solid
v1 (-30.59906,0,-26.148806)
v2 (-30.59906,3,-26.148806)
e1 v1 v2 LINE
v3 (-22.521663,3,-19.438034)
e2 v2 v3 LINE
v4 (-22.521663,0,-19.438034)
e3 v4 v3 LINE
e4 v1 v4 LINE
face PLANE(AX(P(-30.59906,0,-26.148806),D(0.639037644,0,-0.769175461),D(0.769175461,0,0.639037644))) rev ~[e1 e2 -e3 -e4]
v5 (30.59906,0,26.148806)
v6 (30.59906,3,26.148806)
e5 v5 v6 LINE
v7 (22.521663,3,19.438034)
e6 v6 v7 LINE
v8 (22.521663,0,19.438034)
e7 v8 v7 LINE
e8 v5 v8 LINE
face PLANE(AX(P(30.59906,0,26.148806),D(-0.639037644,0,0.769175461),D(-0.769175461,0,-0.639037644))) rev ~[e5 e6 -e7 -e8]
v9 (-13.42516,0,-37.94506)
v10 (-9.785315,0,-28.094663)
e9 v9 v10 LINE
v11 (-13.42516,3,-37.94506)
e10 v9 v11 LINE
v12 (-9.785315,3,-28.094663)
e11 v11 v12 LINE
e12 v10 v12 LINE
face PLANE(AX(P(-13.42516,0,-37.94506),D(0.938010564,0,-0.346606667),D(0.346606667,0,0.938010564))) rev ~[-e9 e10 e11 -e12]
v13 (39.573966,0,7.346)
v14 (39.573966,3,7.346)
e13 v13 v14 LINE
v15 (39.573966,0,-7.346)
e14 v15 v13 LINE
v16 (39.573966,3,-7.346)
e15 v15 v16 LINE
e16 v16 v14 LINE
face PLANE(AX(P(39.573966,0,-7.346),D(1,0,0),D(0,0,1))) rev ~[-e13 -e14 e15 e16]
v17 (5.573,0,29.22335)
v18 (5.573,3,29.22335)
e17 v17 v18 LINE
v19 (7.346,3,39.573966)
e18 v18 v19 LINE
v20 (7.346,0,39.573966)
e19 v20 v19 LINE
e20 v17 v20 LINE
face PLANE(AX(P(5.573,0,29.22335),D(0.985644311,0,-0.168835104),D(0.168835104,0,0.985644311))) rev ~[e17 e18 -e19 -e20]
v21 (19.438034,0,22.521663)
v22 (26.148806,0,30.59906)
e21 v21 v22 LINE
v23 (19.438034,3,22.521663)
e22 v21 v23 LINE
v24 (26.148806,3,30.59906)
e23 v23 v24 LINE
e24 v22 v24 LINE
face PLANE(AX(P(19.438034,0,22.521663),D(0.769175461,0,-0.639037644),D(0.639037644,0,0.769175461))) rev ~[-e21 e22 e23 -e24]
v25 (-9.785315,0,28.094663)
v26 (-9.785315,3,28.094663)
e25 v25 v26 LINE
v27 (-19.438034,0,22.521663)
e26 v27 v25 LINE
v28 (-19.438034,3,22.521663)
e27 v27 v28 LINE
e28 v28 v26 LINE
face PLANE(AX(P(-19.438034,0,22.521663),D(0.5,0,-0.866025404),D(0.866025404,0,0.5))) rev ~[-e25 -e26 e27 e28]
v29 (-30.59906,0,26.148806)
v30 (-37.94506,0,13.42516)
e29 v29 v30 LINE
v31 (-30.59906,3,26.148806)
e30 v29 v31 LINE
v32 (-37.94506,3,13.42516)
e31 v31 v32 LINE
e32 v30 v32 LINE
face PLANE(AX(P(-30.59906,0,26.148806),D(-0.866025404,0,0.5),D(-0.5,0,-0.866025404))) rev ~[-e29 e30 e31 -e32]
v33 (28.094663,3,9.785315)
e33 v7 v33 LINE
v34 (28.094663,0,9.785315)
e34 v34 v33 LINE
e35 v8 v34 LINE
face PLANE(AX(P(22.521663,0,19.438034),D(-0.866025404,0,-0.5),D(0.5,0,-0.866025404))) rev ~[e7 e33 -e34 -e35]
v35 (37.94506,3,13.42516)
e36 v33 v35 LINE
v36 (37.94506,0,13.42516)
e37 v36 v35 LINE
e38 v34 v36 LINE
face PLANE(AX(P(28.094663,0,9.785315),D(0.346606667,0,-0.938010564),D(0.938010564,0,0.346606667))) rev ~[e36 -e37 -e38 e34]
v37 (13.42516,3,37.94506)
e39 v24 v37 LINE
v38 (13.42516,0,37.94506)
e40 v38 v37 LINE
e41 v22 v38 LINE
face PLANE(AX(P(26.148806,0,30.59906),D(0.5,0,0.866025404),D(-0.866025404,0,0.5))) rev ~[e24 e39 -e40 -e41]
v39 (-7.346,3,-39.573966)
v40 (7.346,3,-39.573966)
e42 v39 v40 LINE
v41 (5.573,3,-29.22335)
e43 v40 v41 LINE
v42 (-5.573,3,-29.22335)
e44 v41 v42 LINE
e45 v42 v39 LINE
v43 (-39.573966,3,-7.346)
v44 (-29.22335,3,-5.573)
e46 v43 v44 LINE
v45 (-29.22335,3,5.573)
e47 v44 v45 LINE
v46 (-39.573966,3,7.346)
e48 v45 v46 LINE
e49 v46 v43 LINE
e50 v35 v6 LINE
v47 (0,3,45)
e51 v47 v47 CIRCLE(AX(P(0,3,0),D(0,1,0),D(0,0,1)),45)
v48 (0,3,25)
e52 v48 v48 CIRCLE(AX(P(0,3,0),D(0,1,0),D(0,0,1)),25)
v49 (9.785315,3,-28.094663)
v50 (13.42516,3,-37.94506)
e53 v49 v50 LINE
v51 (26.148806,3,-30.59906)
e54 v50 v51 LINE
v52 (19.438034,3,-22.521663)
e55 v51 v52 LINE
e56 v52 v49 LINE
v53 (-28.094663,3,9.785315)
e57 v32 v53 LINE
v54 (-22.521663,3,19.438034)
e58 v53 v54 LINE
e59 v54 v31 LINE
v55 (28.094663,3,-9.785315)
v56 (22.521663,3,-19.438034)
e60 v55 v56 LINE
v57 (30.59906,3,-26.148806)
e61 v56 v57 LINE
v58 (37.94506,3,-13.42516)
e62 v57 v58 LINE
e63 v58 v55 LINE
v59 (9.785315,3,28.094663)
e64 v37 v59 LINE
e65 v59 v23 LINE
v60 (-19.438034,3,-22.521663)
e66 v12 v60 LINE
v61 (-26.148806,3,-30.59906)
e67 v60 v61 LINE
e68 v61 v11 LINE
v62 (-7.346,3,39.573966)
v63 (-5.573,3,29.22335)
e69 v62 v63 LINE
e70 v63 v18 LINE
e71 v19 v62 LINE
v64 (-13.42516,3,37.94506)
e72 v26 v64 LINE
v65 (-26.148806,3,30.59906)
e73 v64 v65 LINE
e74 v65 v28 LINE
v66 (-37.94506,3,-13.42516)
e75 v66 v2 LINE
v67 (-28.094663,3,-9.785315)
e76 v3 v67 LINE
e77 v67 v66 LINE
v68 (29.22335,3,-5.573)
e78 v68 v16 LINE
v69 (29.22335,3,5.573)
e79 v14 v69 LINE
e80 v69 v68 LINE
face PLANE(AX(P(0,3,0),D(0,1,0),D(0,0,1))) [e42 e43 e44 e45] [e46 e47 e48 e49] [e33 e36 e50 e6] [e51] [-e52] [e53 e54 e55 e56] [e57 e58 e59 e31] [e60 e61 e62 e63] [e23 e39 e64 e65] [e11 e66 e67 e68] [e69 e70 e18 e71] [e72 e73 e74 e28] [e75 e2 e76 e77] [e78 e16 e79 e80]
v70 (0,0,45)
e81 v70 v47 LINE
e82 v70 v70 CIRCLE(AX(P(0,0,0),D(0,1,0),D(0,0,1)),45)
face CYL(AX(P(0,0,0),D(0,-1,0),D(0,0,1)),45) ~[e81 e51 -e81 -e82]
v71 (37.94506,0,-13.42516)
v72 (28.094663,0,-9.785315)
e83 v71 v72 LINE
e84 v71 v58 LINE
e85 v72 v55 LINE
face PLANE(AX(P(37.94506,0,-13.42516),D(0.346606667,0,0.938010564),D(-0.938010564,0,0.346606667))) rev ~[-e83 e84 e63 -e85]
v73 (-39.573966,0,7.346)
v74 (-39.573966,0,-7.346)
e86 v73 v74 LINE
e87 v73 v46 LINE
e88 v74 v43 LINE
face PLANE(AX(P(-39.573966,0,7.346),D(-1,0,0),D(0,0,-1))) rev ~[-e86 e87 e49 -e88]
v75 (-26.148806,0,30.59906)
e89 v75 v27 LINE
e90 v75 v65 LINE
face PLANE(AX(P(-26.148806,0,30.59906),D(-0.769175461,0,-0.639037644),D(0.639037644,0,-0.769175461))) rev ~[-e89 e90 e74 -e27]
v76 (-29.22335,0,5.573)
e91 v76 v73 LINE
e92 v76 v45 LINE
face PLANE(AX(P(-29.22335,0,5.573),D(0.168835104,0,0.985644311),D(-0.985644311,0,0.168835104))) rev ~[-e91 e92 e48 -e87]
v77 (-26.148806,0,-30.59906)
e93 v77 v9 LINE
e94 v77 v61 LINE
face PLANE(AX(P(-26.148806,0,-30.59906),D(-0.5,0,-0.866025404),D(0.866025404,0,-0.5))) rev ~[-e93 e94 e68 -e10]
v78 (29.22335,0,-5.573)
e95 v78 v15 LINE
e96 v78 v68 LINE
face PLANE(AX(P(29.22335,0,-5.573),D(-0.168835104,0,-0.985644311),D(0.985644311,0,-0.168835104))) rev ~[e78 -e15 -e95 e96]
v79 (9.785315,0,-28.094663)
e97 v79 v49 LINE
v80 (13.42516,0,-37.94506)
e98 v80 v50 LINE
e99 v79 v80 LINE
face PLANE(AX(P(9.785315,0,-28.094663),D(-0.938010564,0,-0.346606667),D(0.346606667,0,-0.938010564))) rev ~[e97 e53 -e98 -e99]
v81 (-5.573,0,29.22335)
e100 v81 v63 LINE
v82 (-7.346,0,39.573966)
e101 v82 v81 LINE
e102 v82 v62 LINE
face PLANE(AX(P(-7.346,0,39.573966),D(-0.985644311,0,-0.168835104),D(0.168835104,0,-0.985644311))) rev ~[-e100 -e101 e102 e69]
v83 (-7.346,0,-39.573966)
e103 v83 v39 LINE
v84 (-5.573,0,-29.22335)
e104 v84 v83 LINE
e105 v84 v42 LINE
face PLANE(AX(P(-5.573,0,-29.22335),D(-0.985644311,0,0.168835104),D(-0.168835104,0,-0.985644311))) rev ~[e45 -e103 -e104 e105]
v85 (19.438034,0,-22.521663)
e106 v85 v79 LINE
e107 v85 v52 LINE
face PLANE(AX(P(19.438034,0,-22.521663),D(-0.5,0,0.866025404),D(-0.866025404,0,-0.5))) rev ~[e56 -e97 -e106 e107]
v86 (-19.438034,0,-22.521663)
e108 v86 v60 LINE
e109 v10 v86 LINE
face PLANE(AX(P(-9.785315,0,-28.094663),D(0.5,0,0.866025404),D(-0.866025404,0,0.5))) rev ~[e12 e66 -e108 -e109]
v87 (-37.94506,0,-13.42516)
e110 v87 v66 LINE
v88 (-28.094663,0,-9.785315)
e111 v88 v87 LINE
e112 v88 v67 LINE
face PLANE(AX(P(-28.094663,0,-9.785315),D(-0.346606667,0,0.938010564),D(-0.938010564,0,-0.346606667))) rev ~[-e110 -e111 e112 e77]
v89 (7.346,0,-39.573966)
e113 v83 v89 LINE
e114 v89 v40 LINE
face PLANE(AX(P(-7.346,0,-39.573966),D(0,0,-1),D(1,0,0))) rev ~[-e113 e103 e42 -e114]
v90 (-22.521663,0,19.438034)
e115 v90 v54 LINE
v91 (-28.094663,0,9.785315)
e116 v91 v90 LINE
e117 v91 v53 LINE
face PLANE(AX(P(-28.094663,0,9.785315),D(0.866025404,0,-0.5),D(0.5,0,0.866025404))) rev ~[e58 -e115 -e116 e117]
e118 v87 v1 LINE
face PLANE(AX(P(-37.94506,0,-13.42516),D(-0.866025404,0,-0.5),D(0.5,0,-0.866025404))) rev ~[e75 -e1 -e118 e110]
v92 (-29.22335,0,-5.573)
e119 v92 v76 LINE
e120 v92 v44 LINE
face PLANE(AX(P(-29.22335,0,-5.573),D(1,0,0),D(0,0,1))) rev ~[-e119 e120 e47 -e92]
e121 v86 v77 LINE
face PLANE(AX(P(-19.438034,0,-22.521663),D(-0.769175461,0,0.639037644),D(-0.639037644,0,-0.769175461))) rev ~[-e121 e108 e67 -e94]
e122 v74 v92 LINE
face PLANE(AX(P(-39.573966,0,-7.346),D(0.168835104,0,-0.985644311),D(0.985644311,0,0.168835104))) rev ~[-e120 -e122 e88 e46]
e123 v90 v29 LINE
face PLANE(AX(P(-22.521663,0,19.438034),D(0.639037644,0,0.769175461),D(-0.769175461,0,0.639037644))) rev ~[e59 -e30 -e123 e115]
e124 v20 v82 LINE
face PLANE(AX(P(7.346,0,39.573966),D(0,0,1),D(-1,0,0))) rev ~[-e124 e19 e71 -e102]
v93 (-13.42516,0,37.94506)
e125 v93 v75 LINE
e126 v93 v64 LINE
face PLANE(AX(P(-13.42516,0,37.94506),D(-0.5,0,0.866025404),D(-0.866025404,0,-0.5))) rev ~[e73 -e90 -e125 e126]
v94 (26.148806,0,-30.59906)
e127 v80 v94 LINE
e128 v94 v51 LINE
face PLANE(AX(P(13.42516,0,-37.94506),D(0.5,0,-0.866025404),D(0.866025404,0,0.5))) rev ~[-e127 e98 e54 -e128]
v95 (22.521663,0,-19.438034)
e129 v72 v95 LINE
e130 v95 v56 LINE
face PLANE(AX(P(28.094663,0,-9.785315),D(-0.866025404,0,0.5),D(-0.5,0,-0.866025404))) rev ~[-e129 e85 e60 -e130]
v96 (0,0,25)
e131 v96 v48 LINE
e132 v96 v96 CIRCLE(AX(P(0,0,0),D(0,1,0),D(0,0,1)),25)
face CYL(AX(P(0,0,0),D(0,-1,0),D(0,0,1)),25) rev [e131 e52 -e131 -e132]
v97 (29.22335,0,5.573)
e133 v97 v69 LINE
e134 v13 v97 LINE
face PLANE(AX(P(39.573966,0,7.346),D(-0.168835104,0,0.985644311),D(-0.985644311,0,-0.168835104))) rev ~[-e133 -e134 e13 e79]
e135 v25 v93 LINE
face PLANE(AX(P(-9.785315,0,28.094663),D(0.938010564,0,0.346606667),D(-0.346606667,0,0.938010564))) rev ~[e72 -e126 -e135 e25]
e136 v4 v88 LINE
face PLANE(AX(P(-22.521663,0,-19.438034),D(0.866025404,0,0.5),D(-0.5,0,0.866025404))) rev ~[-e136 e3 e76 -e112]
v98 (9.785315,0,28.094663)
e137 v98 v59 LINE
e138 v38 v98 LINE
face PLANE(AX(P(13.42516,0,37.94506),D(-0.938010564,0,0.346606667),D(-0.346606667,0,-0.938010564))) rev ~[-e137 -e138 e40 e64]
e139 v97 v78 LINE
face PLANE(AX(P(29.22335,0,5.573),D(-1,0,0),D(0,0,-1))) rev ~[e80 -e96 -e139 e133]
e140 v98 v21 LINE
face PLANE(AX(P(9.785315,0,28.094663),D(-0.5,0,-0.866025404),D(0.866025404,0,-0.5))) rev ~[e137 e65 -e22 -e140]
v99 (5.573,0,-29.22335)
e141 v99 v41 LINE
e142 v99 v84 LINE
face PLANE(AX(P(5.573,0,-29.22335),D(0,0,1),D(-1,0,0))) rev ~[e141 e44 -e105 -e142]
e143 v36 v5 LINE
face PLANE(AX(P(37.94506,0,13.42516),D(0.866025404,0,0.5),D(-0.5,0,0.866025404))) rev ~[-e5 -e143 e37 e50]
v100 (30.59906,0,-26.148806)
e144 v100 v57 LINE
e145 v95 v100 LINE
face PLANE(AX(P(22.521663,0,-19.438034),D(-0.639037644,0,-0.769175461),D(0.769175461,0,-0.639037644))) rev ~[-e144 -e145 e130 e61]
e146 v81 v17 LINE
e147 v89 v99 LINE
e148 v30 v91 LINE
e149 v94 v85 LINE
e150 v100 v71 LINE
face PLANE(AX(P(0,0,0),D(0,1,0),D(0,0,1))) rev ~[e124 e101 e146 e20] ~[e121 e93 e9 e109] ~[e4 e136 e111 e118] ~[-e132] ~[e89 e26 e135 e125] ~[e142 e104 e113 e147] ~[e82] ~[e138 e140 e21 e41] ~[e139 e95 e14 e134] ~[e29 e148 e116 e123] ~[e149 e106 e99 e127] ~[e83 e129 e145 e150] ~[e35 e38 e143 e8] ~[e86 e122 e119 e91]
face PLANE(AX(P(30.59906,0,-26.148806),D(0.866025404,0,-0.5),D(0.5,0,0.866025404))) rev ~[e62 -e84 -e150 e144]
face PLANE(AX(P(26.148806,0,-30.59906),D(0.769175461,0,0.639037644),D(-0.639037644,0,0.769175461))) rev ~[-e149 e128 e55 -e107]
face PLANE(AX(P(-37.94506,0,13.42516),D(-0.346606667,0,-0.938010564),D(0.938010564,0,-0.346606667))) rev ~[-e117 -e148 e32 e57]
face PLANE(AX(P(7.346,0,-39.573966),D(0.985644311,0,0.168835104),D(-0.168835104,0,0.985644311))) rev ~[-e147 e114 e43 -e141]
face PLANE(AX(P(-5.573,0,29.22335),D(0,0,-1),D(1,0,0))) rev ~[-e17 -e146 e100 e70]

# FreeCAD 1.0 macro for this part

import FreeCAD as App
import Part
import Sketcher

V = App.Vector
Q = App.Units.Quantity

doc = App.newDocument("Part")
params = doc.addObject("Spreadsheet::Sheet", "Params")
for row, (alias, value) in enumerate([
    ("sketch1_diameter", "90 mm"),
    ("sketch1_diameter2", "50 mm"),
    ("pad1_length", "3 mm"),
], start=1):
    params.set(f"A{row}", alias)
    params.set(f"B{row}", "=" + value)
    params.setAlias(f"B{row}", alias)

body = doc.addObject("PartDesign::Body", "Body")

# Sketch on XZ plane
sketch1 = doc.addObject("Sketcher::SketchObject", "Sketch")
body.addObject(sketch1)
sketch1.AttachmentSupport = (doc.XZ_Plane, [""])
sketch1.MapMode = "FlatFace"
sketch1.addGeometry([
    Part.Circle(V(0, 0, 0), V(0, 0, 1), 45),  # 0
    Part.LineSegment(V(-22.521663, -19.438034, 0), V(-28.094663, -9.785315, 0)),  # 1
    Part.LineSegment(V(-28.094663, -9.785315, 0), V(-37.94506, -13.42516, 0)),  # 2
    Part.LineSegment(V(-37.94506, -13.42516, 0), V(-30.59906, -26.148806, 0)),  # 3
    Part.LineSegment(V(-30.59906, -26.148806, 0), V(-22.521663, -19.438034, 0)),  # 4
    Part.LineSegment(V(-9.785315, -28.094663, 0), V(-19.438034, -22.521663, 0)),  # 5
    Part.LineSegment(V(-19.438034, -22.521663, 0), V(-26.148806, -30.59906, 0)),  # 6
    Part.LineSegment(V(-26.148806, -30.59906, 0), V(-13.42516, -37.94506, 0)),  # 7
    Part.LineSegment(V(-13.42516, -37.94506, 0), V(-9.785315, -28.094663, 0)),  # 8
    Part.LineSegment(V(-5.573, -29.22335, 0), V(-7.346, -39.573966, 0)),  # 9
    Part.LineSegment(V(-7.346, -39.573966, 0), V(7.346, -39.573966, 0)),  # 10
    Part.LineSegment(V(7.346, -39.573966, 0), V(5.573, -29.22335, 0)),  # 11
    Part.LineSegment(V(5.573, -29.22335, 0), V(-5.573, -29.22335, 0)),  # 12
    Part.LineSegment(V(-29.22335, -5.573, 0), V(-29.22335, 5.573, 0)),  # 13
    Part.LineSegment(V(-29.22335, 5.573, 0), V(-39.573966, 7.346, 0)),  # 14
    Part.LineSegment(V(-39.573966, 7.346, 0), V(-39.573966, -7.346, 0)),  # 15
    Part.LineSegment(V(-39.573966, -7.346, 0), V(-29.22335, -5.573, 0)),  # 16
    Part.LineSegment(V(-28.094663, 9.785315, 0), V(-22.521663, 19.438034, 0)),  # 17
    Part.LineSegment(V(-22.521663, 19.438034, 0), V(-30.59906, 26.148806, 0)),  # 18
    Part.LineSegment(V(-30.59906, 26.148806, 0), V(-37.94506, 13.42516, 0)),  # 19
    Part.LineSegment(V(-37.94506, 13.42516, 0), V(-28.094663, 9.785315, 0)),  # 20
    Part.LineSegment(V(-19.438034, 22.521663, 0), V(-9.785315, 28.094663, 0)),  # 21
    Part.LineSegment(V(-9.785315, 28.094663, 0), V(-13.42516, 37.94506, 0)),  # 22
    Part.LineSegment(V(-13.42516, 37.94506, 0), V(-26.148806, 30.59906, 0)),  # 23
    Part.LineSegment(V(-26.148806, 30.59906, 0), V(-19.438034, 22.521663, 0)),  # 24
    Part.LineSegment(V(19.438034, -22.521663, 0), V(9.785315, -28.094663, 0)),  # 25
    Part.LineSegment(V(9.785315, -28.094663, 0), V(13.42516, -37.94506, 0)),  # 26
    Part.LineSegment(V(13.42516, -37.94506, 0), V(26.148806, -30.59906, 0)),  # 27
    Part.LineSegment(V(26.148806, -30.59906, 0), V(19.438034, -22.521663, 0)),  # 28
    Part.LineSegment(V(28.094663, -9.785315, 0), V(22.521663, -19.438034, 0)),  # 29
    Part.LineSegment(V(22.521663, -19.438034, 0), V(30.59906, -26.148806, 0)),  # 30
    Part.LineSegment(V(30.59906, -26.148806, 0), V(37.94506, -13.42516, 0)),  # 31
    Part.LineSegment(V(37.94506, -13.42516, 0), V(28.094663, -9.785315, 0)),  # 32
    Part.LineSegment(V(29.22335, 5.573, 0), V(29.22335, -5.573, 0)),  # 33
    Part.LineSegment(V(29.22335, -5.573, 0), V(39.573966, -7.346, 0)),  # 34
    Part.LineSegment(V(39.573966, -7.346, 0), V(39.573966, 7.346, 0)),  # 35
    Part.LineSegment(V(39.573966, 7.346, 0), V(29.22335, 5.573, 0)),  # 36
    Part.Circle(V(0, 0, 0), V(0, 0, 1), 25),  # 37
    Part.LineSegment(V(-5.573, 29.22335, 0), V(5.573, 29.22335, 0)),  # 38
    Part.LineSegment(V(5.573, 29.22335, 0), V(7.346, 39.573966, 0)),  # 39
    Part.LineSegment(V(7.346, 39.573966, 0), V(-7.346, 39.573966, 0)),  # 40
    Part.LineSegment(V(-7.346, 39.573966, 0), V(-5.573, 29.22335, 0)),  # 41
    Part.LineSegment(V(9.785315, 28.094663, 0), V(19.438034, 22.521663, 0)),  # 42
    Part.LineSegment(V(19.438034, 22.521663, 0), V(26.148806, 30.59906, 0)),  # 43
    Part.LineSegment(V(26.148806, 30.59906, 0), V(13.42516, 37.94506, 0)),  # 44
    Part.LineSegment(V(13.42516, 37.94506, 0), V(9.785315, 28.094663, 0)),  # 45
    Part.LineSegment(V(22.521663, 19.438034, 0), V(28.094663, 9.785315, 0)),  # 46
    Part.LineSegment(V(28.094663, 9.785315, 0), V(37.94506, 13.42516, 0)),  # 47
    Part.LineSegment(V(37.94506, 13.42516, 0), V(30.59906, 26.148806, 0)),  # 48
    Part.LineSegment(V(30.59906, 26.148806, 0), V(22.521663, 19.438034, 0)),  # 49
], False)
sketch1.addConstraint([
    Sketcher.Constraint("Coincident", 1, 2, 2, 1),
    Sketcher.Constraint("Coincident", 2, 2, 3, 1),
    Sketcher.Constraint("Coincident", 3, 2, 4, 1),
    Sketcher.Constraint("Coincident", 4, 2, 1, 1),
    Sketcher.Constraint("Coincident", 5, 2, 6, 1),
    Sketcher.Constraint("Coincident", 6, 2, 7, 1),
    Sketcher.Constraint("Coincident", 7, 2, 8, 1),
    Sketcher.Constraint("Coincident", 8, 2, 5, 1),
    Sketcher.Constraint("Coincident", 9, 2, 10, 1),
    Sketcher.Constraint("Coincident", 10, 2, 11, 1),
    Sketcher.Constraint("Coincident", 11, 2, 12, 1),
    Sketcher.Constraint("Coincident", 12, 2, 9, 1),
    Sketcher.Constraint("Coincident", 13, 2, 14, 1),
    Sketcher.Constraint("Coincident", 14, 2, 15, 1),
    Sketcher.Constraint("Coincident", 15, 2, 16, 1),
    Sketcher.Constraint("Coincident", 16, 2, 13, 1),
    Sketcher.Constraint("Coincident", 17, 2, 18, 1),
    Sketcher.Constraint("Coincident", 18, 2, 19, 1),
    Sketcher.Constraint("Coincident", 19, 2, 20, 1),
    Sketcher.Constraint("Coincident", 20, 2, 17, 1),
    Sketcher.Constraint("Coincident", 21, 2, 22, 1),
    Sketcher.Constraint("Coincident", 22, 2, 23, 1),
    Sketcher.Constraint("Coincident", 23, 2, 24, 1),
    Sketcher.Constraint("Coincident", 24, 2, 21, 1),
    Sketcher.Constraint("Coincident", 25, 2, 26, 1),
    Sketcher.Constraint("Coincident", 26, 2, 27, 1),
    Sketcher.Constraint("Coincident", 27, 2, 28, 1),
    Sketcher.Constraint("Coincident", 28, 2, 25, 1),
    Sketcher.Constraint("Coincident", 29, 2, 30, 1),
    Sketcher.Constraint("Coincident", 30, 2, 31, 1),
    Sketcher.Constraint("Coincident", 31, 2, 32, 1),
    Sketcher.Constraint("Coincident", 32, 2, 29, 1),
    Sketcher.Constraint("Coincident", 33, 2, 34, 1),
    Sketcher.Constraint("Coincident", 34, 2, 35, 1),
    Sketcher.Constraint("Coincident", 35, 2, 36, 1),
    Sketcher.Constraint("Coincident", 36, 2, 33, 1),
    Sketcher.Constraint("Coincident", 38, 2, 39, 1),
    Sketcher.Constraint("Coincident", 39, 2, 40, 1),
    Sketcher.Constraint("Coincident", 40, 2, 41, 1),
    Sketcher.Constraint("Coincident", 41, 2, 38, 1),
    Sketcher.Constraint("Coincident", 42, 2, 43, 1),
    Sketcher.Constraint("Coincident", 43, 2, 44, 1),
    Sketcher.Constraint("Coincident", 44, 2, 45, 1),
    Sketcher.Constraint("Coincident", 45, 2, 42, 1),
    Sketcher.Constraint("Coincident", 46, 2, 47, 1),
    Sketcher.Constraint("Coincident", 47, 2, 48, 1),
    Sketcher.Constraint("Coincident", 48, 2, 49, 1),
    Sketcher.Constraint("Coincident", 49, 2, 46, 1),
    Sketcher.Constraint("Horizontal", 10),
    Sketcher.Constraint("Horizontal", 12),
    Sketcher.Constraint("Vertical", 13),
    Sketcher.Constraint("Vertical", 15),
    Sketcher.Constraint("Vertical", 33),
    Sketcher.Constraint("Vertical", 35),
    Sketcher.Constraint("Horizontal", 38),
    Sketcher.Constraint("Horizontal", 40),
    Sketcher.Constraint("Coincident", 0, 3, -1, 1),
    Sketcher.Constraint("Coincident", 37, 3, -1, 1),
    Sketcher.Constraint("Symmetric", 21, 2, 25, 2, -1, 1),
    Sketcher.Constraint("Symmetric", 22, 2, 26, 2, -1, 1),
    Sketcher.Constraint("Symmetric", 23, 2, 27, 2, -1, 1),
    Sketcher.Constraint("Symmetric", 24, 2, 28, 2, -1, 1),
    Sketcher.Constraint("Symmetric", 17, 2, 29, 2, -1, 1),
    Sketcher.Constraint("Symmetric", 18, 2, 30, 2, -1, 1),
    Sketcher.Constraint("Symmetric", 19, 2, 31, 2, -1, 1),
    Sketcher.Constraint("Symmetric", 20, 2, 32, 2, -1, 1),
    Sketcher.Constraint("Symmetric", 13, 2, 33, 2, -1, 1),
    Sketcher.Constraint("Symmetric", 14, 2, 34, 2, -1, 1),
    Sketcher.Constraint("Symmetric", 12, 2, 38, 2, -1, 1),
    Sketcher.Constraint("Symmetric", 9, 2, 39, 2, -1, 1),
    Sketcher.Constraint("Symmetric", 5, 2, 42, 2, -1, 1),
    Sketcher.Constraint("Symmetric", 6, 2, 43, 2, -1, 1),
    Sketcher.Constraint("Symmetric", 7, 2, 44, 2, -1, 1),
    Sketcher.Constraint("Symmetric", 8, 2, 45, 2, -1, 1),
    Sketcher.Constraint("Symmetric", 1, 2, 46, 2, -1, 1),
    Sketcher.Constraint("Symmetric", 2, 2, 47, 2, -1, 1),
    Sketcher.Constraint("Symmetric", 3, 2, 48, 2, -1, 1),
    Sketcher.Constraint("Symmetric", 4, 2, 49, 2, -1, 1),
    Sketcher.Constraint("Symmetric", 8, 2, 25, 2, -2),
    Sketcher.Constraint("Symmetric", 7, 2, 26, 2, -2),
    Sketcher.Constraint("Symmetric", 6, 2, 27, 2, -2),
    Sketcher.Constraint("Symmetric", 5, 2, 28, 2, -2),
    Sketcher.Constraint("Symmetric", 4, 2, 29, 2, -2),
    Sketcher.Constraint("Symmetric", 3, 2, 30, 2, -2),
    Sketcher.Constraint("Symmetric", 2, 2, 31, 2, -2),
    Sketcher.Constraint("Symmetric", 1, 2, 32, 2, -2),
    Sketcher.Constraint("Parallel", 1, 3),
    Sketcher.Constraint("Parallel", 5, 7),
    Sketcher.Constraint("Perpendicular", 9, 14),
    Sketcher.Constraint("Perpendicular", 11, 16),
    Sketcher.Constraint("Perpendicular", 7, 17),
    Sketcher.Constraint("Perpendicular", 6, 18),
    Sketcher.Constraint("Perpendicular", 8, 20),
    Sketcher.Constraint("Parallel", 16, 36),
    Sketcher.Constraint("Perpendicular", 36, 41),
    Sketcher.Constraint("Horizontal", 16, 2, 33, 2),
    Sketcher.Constraint("Horizontal", 15, 2, 34, 2),
    Sketcher.Constraint("Horizontal", 14, 2, 35, 2),
    Sketcher.Constraint("Vertical", 11, 2, 38, 2),
    Sketcher.Constraint("Vertical", 9, 2, 40, 2),
    Sketcher.Constraint("Equal", 38, 13),
    Sketcher.Constraint("Equal", 40, 15),
    Sketcher.Constraint("Equal", 2, 4),
    Sketcher.Constraint("Equal", 1, 5),
    Sketcher.Constraint("Equal", 4, 6),
    Sketcher.Constraint("Equal", 8, 9),
    Sketcher.Constraint("Diameter", 0, 90.0),
    Sketcher.Constraint("Diameter", 37, 50.0),
    Sketcher.Constraint("Angle", 1, Q("120 deg")),
    Sketcher.Constraint("DistanceX", 10, 1, 10, 2, 14.692),
    Sketcher.Constraint("DistanceX", 12, 2, 12, 1, 11.146),
    Sketcher.Constraint("Distance", 1, 11.146),
    Sketcher.Constraint("Distance", 3, 14.692),
    Sketcher.Constraint("DistanceY", 6, 2, 2, 2, 17.173899),
    Sketcher.Constraint("DistanceX", 3, 2, 7, 2, 17.173899),
    Sketcher.Constraint("Distance", 2, 10.501371),
    Sketcher.Constraint("DistanceX", 2, 2, -1, 1, 37.94506),
    Sketcher.Constraint("DistanceY", 2, 2, -1, 1, 13.42516),
    Sketcher.Constraint("DistanceY", 11, 2, -1, 1, 29.22335),
    Sketcher.Constraint("DistanceX", 13, 2, -1, 1, 29.22335),
])
sketch1.setExpression("Constraints[106]", "Params.sketch1_diameter")
sketch1.setExpression("Constraints[107]", "Params.sketch1_diameter2")
pad1 = doc.addObject("PartDesign::Pad", "Pad")
body.addObject(pad1)
pad1.Profile = sketch1
pad1.setExpression("Length", "Params.pad1_length")
pad1.Reversed = True

doc.recompute()
